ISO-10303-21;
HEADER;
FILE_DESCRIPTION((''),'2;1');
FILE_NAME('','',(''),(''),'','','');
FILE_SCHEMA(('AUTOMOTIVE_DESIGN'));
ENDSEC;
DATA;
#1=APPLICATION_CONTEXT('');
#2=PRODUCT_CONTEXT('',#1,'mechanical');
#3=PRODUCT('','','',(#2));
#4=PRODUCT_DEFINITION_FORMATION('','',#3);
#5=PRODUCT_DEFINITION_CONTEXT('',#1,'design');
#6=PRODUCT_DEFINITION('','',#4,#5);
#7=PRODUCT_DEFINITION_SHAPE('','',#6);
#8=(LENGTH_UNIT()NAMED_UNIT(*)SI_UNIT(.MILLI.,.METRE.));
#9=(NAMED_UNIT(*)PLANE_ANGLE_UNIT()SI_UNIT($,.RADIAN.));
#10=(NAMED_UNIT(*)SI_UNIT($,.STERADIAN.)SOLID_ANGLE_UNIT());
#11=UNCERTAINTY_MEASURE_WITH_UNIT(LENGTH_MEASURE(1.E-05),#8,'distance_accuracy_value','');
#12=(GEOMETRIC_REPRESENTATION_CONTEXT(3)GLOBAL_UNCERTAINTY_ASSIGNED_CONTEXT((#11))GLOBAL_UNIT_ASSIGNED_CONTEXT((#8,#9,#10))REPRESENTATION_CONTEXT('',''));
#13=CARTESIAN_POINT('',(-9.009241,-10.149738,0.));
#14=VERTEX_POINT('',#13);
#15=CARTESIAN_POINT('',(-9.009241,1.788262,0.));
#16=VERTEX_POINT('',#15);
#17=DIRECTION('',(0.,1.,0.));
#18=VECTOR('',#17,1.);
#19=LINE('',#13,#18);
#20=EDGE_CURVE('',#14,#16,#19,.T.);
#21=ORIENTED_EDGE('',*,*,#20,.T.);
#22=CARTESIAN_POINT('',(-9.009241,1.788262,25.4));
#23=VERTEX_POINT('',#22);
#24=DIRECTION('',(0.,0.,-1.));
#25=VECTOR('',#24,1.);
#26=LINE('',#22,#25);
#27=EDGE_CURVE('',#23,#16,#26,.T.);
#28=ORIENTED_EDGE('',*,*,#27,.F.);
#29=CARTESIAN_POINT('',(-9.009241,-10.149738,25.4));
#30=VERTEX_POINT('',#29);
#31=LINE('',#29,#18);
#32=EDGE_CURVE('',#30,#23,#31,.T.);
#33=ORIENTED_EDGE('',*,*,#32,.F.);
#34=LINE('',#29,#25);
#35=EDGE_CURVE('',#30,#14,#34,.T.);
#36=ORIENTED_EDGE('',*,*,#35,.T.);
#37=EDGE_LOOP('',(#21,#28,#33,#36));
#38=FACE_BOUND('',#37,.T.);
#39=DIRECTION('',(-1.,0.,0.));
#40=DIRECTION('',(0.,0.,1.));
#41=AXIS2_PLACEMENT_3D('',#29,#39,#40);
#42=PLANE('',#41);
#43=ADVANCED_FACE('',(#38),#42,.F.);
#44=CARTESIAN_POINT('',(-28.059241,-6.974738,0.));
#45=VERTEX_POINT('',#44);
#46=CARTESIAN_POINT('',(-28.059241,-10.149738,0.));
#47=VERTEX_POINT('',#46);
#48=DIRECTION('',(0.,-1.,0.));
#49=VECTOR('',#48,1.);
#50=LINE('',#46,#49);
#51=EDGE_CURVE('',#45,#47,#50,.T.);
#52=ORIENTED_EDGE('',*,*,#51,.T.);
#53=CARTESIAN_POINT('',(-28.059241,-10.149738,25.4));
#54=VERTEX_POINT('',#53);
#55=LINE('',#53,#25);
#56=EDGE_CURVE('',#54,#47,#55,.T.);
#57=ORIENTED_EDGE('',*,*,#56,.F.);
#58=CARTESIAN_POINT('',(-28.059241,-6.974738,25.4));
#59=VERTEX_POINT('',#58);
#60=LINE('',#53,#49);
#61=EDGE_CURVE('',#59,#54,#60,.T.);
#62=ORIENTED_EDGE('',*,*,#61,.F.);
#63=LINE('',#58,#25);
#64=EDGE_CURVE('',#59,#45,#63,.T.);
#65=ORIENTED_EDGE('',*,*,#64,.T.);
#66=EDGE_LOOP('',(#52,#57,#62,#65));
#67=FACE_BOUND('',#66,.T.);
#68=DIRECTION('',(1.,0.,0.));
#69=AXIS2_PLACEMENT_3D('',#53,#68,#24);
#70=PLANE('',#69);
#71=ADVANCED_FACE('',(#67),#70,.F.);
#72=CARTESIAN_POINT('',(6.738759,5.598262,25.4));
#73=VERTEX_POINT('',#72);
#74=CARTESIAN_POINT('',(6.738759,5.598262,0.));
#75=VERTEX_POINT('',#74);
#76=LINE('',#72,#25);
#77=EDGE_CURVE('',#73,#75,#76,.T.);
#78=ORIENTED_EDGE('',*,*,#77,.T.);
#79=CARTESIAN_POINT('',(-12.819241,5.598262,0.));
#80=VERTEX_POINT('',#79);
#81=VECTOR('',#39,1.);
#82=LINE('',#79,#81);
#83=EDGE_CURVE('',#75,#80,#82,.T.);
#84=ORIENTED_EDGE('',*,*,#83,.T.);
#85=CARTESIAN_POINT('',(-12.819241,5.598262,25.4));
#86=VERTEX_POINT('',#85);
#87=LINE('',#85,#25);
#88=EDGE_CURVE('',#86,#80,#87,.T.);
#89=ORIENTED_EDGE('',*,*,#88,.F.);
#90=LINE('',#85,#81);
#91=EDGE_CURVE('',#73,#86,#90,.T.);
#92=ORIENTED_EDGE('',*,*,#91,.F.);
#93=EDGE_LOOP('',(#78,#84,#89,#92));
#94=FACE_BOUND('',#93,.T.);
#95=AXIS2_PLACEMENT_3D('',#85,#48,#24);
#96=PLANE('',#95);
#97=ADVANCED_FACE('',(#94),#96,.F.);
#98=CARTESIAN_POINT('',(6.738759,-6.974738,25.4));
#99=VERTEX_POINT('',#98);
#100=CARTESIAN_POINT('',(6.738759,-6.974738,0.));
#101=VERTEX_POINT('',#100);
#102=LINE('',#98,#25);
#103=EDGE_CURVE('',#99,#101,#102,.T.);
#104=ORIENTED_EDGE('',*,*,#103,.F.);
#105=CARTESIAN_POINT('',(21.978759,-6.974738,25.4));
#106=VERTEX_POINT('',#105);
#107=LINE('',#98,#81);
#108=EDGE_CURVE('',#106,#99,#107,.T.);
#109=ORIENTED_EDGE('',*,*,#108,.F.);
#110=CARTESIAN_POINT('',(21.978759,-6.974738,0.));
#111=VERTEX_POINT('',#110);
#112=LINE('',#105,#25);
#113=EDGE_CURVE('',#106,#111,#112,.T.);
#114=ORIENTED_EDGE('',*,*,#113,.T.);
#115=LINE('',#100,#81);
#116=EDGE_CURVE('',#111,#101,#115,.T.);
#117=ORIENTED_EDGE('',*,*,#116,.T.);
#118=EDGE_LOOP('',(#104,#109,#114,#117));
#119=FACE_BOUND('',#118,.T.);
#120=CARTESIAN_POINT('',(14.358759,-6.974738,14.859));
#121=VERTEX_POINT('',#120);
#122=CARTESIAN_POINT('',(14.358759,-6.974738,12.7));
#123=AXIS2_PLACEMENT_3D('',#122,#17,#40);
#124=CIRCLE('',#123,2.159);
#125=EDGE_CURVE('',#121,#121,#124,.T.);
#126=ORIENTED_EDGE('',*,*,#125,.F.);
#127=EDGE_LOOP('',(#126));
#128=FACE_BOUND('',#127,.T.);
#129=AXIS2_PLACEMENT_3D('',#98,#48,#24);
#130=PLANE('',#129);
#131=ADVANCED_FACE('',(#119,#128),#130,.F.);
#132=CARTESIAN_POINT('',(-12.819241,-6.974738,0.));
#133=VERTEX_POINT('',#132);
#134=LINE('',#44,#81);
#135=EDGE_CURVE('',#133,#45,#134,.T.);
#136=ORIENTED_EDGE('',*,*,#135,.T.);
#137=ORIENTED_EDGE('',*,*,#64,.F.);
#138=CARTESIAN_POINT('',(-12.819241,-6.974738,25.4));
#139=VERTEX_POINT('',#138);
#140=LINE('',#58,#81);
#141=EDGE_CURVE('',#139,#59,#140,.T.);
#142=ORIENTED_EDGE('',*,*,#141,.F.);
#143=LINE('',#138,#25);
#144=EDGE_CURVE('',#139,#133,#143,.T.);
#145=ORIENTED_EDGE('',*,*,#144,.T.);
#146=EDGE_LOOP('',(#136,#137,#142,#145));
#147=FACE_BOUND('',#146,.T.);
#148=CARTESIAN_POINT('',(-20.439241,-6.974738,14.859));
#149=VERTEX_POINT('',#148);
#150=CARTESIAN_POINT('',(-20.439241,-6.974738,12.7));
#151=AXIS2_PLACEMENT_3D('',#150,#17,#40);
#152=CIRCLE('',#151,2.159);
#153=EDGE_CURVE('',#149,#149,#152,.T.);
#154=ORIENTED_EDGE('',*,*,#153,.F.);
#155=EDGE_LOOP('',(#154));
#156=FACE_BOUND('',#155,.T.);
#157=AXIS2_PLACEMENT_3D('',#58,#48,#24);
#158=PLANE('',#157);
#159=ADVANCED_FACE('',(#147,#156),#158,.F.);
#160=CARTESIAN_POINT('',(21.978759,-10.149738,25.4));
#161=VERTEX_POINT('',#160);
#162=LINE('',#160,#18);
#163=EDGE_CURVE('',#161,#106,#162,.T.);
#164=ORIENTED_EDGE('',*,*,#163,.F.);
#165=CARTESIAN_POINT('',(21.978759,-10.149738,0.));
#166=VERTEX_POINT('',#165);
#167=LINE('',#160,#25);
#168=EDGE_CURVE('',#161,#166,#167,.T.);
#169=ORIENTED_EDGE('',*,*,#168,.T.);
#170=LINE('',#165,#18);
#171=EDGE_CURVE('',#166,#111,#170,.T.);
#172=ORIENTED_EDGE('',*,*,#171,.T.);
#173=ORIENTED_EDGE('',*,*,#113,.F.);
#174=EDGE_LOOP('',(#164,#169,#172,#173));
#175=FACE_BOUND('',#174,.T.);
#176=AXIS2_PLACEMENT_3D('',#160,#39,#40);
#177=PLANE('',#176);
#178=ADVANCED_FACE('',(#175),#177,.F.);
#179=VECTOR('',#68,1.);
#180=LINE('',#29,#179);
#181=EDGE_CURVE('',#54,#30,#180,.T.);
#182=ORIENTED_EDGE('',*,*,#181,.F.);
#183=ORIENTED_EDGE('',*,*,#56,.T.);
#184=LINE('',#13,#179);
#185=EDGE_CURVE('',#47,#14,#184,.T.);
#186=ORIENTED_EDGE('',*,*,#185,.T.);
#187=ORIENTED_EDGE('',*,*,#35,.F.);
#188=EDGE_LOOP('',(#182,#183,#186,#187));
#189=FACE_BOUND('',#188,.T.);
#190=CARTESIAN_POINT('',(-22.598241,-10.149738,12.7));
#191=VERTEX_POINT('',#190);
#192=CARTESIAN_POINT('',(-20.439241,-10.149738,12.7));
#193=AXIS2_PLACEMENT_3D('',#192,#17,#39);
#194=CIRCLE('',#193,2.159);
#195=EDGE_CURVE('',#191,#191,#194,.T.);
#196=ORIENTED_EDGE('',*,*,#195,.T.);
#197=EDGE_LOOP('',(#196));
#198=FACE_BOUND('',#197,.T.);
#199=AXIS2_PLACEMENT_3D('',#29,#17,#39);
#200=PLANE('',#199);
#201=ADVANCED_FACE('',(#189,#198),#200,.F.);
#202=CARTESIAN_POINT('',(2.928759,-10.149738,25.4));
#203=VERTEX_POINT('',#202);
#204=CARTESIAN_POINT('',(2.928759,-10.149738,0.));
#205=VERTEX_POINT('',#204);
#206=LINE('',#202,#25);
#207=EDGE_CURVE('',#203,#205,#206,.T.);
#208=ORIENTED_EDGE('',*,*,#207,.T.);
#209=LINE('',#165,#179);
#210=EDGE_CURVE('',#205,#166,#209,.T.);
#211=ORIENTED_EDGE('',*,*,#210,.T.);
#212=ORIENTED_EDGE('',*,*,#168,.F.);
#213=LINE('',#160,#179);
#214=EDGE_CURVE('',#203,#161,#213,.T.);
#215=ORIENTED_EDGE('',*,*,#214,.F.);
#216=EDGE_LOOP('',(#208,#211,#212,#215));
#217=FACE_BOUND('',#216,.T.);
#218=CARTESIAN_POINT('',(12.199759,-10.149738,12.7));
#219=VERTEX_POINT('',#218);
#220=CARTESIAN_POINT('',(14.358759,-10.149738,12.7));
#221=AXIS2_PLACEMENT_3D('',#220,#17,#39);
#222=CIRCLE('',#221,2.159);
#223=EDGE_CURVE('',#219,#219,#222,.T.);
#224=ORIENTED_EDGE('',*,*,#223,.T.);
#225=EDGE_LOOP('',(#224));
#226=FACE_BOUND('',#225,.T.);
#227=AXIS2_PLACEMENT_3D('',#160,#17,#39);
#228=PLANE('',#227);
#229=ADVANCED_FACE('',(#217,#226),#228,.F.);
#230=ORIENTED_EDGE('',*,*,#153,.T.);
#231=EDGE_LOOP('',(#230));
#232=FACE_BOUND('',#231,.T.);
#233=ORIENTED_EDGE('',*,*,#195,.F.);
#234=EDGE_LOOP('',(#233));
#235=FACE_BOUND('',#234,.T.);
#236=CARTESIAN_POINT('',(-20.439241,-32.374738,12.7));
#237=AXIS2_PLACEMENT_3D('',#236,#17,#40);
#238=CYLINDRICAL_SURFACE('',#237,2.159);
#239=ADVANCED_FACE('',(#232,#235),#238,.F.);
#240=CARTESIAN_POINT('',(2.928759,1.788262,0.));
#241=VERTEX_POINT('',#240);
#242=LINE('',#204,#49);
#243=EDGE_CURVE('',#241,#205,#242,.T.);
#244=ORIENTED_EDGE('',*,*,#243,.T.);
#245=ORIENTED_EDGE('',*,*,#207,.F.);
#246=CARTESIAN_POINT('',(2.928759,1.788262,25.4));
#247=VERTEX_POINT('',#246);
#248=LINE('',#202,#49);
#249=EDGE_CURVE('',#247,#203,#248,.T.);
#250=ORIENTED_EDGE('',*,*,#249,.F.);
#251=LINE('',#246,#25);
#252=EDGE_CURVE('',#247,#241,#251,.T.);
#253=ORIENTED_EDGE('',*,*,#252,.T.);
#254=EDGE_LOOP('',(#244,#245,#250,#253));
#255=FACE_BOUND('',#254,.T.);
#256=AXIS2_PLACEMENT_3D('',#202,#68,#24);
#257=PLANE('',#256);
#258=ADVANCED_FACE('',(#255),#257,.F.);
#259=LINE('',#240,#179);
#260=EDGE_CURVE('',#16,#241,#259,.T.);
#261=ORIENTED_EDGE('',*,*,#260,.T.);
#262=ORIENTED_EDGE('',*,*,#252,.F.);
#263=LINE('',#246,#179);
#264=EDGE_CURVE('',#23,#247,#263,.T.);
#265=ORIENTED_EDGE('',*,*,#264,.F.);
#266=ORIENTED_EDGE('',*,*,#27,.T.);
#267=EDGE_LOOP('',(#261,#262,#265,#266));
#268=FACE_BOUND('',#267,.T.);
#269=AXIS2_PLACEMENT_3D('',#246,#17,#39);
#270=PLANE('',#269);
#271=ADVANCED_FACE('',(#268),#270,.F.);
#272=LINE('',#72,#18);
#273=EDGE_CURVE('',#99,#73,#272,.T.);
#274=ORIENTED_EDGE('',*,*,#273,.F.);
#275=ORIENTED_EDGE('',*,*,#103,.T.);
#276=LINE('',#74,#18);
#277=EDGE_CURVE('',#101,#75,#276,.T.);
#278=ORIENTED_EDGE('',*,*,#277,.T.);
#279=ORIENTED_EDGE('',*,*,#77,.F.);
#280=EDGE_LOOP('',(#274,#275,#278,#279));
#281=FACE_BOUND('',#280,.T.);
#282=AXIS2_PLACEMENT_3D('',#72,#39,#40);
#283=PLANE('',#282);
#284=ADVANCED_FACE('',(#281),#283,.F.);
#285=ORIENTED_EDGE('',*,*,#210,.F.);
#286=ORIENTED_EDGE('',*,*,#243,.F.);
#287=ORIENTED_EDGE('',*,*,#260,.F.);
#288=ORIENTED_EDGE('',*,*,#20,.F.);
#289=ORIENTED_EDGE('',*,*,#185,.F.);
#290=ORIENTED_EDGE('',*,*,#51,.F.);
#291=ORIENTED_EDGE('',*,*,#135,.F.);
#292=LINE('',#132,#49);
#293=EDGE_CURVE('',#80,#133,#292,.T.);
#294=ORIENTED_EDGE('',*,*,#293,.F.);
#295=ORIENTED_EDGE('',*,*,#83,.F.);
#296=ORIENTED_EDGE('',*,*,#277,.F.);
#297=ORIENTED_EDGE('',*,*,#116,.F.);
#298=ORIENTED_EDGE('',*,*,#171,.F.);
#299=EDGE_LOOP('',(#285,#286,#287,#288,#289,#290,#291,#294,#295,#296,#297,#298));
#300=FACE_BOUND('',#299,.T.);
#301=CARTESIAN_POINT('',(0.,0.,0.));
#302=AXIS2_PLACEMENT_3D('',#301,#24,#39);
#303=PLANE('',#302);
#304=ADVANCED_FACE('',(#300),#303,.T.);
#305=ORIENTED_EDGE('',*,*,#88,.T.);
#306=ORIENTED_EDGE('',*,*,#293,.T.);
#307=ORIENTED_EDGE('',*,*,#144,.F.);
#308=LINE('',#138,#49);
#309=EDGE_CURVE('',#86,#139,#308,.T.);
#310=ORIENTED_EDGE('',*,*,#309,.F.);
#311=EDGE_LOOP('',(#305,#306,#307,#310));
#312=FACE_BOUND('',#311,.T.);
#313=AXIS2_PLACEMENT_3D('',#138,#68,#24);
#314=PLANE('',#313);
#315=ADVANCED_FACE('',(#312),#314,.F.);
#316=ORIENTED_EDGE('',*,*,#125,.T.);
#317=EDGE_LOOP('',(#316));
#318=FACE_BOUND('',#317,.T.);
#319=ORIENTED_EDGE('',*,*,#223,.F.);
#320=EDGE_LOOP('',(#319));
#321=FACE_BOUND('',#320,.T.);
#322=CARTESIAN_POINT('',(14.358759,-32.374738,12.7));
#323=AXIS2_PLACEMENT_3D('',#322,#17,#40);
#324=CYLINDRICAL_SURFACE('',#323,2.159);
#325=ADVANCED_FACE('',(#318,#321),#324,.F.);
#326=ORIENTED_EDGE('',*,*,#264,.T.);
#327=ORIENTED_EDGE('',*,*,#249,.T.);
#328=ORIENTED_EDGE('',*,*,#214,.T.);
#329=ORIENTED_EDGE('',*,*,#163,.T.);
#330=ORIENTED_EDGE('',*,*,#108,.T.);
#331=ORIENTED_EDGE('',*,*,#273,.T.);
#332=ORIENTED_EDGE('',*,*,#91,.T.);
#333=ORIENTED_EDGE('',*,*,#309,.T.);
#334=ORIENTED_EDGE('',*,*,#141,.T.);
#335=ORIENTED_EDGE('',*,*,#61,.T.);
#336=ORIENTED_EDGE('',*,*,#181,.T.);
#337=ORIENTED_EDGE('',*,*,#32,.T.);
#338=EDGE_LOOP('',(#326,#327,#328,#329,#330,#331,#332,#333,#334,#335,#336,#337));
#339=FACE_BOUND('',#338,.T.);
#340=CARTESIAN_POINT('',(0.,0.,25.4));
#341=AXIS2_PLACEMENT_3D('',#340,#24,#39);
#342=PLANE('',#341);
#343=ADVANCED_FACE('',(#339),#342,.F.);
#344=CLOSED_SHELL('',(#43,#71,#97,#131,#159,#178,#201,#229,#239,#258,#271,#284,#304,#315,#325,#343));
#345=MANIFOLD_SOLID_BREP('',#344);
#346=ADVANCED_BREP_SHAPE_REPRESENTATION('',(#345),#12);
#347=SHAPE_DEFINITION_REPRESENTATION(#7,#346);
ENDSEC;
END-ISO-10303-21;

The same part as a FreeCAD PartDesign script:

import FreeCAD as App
import Part
import Sketcher
Q = App.Units.Quantity

doc = App.newDocument("Part")
body = doc.addObject("PartDesign::Body", "Body")

sketch1 = body.newObject("Sketcher::SketchObject", "Sketch")
sketch1.AttachmentSupport = (doc.getObject("XY_Plane"), [""])
sketch1.MapMode = "FlatFace"
sketch1.addGeometry([
    Part.LineSegment(App.Vector(-28.059241, -10.149738, 0), App.Vector(-9.009241, -10.149738, 0)),
    Part.LineSegment(App.Vector(-9.009241, -10.149738, 0), App.Vector(-9.009241, 1.788262, 0)),
    Part.LineSegment(App.Vector(-9.009241, 1.788262, 0), App.Vector(2.928759, 1.788262, 0)),
    Part.LineSegment(App.Vector(2.928759, 1.788262, 0), App.Vector(2.928759, -10.149738, 0)),
    Part.LineSegment(App.Vector(2.928759, -10.149738, 0), App.Vector(21.978759, -10.149738, 0)),
    Part.LineSegment(App.Vector(21.978759, -10.149738, 0), App.Vector(21.978759, -6.974738, 0)),
    Part.LineSegment(App.Vector(21.978759, -6.974738, 0), App.Vector(6.738759, -6.974738, 0)),
    Part.LineSegment(App.Vector(6.738759, -6.974738, 0), App.Vector(6.738759, 5.598262, 0)),
    Part.LineSegment(App.Vector(6.738759, 5.598262, 0), App.Vector(-12.819241, 5.598262, 0)),
    Part.LineSegment(App.Vector(-12.819241, 5.598262, 0), App.Vector(-12.819241, -6.974738, 0)),
    Part.LineSegment(App.Vector(-12.819241, -6.974738, 0), App.Vector(-28.059241, -6.974738, 0)),
    Part.LineSegment(App.Vector(-28.059241, -6.974738, 0), App.Vector(-28.059241, -10.149738, 0)),
], False)
sketch1.addConstraint([
    Sketcher.Constraint("Coincident", 0, 2, 1, 1),
    Sketcher.Constraint("Coincident", 1, 2, 2, 1),
    Sketcher.Constraint("Coincident", 2, 2, 3, 1),
    Sketcher.Constraint("Coincident", 3, 2, 4, 1),
    Sketcher.Constraint("Coincident", 4, 2, 5, 1),
    Sketcher.Constraint("Coincident", 5, 2, 6, 1),
    Sketcher.Constraint("Coincident", 6, 2, 7, 1),
    Sketcher.Constraint("Coincident", 7, 2, 8, 1),
    Sketcher.Constraint("Coincident", 8, 2, 9, 1),
    Sketcher.Constraint("Coincident", 9, 2, 10, 1),
    Sketcher.Constraint("Coincident", 10, 2, 11, 1),
    Sketcher.Constraint("Coincident", 11, 2, 0, 1),
    Sketcher.Constraint("Horizontal", 0),
    Sketcher.Constraint("Vertical", 1),
    Sketcher.Constraint("Horizontal", 2),
    Sketcher.Constraint("Vertical", 3),
    Sketcher.Constraint("Horizontal", 4),
    Sketcher.Constraint("Vertical", 5),
    Sketcher.Constraint("Horizontal", 6),
    Sketcher.Constraint("Vertical", 7),
    Sketcher.Constraint("Horizontal", 8),
    Sketcher.Constraint("Vertical", 9),
    Sketcher.Constraint("Horizontal", 10),
    Sketcher.Constraint("Vertical", 11),
    Sketcher.Constraint("Horizontal", 0, 2, 3, 2),
    Sketcher.Constraint("Horizontal", 6, 2, 9, 2),
    Sketcher.Constraint("Equal", 0, 4),
    Sketcher.Constraint("Equal", 6, 10),
    Sketcher.Constraint("Equal", 2, 1),
    Sketcher.Constraint("DistanceX", 6, 2, 6, 1, Q("0.6 in")),
    Sketcher.Constraint("DistanceX", 0, 1, 0, 2, Q("0.75 in")),
    Sketcher.Constraint("DistanceX", 2, 1, 2, 2, Q("0.47 in")),
    Sketcher.Constraint("DistanceY", 5, 1, 5, 2, Q("0.125 in")),
    Sketcher.Constraint("DistanceY", 7, 1, 7, 2, Q("0.495 in")),
    Sketcher.Constraint("DistanceX", 0, 2, -1, 1, 9.009241),
    Sketcher.Constraint("DistanceY", 0, 2, -1, 1, 10.149738),
])
pad1 = body.newObject("PartDesign::Pad", "Pad")
pad1.Profile = sketch1
pad1.Length = Q("1 in")

sketch2 = body.newObject("Sketcher::SketchObject", "Sketch001")
sketch2.AttachmentSupport = (doc.getObject("XZ_Plane"), [""])
sketch2.MapMode = "FlatFace"
sketch2.AttachmentOffset = App.Placement(App.Vector(0, 0, 6.974738), App.Rotation())
sketch2.addGeometry(Part.Circle(App.Vector(14.358759, 12.7, 0), App.Vector(0, 0, 1), 2.159), False)
sketch2.addConstraint([
    Sketcher.Constraint("Diameter", 0, Q("0.17 in")),
    Sketcher.Constraint("DistanceY", -1, 1, 0, 3, Q("0.5 in")),
    Sketcher.Constraint("DistanceX", -1, 1, 0, 3, 14.358759),
])
pocket1 = body.newObject("PartDesign::Pocket", "Pocket")
pocket1.Profile = sketch2
pocket1.Length = Q("1 in")
pocket1.Reversed = True

sketch3 = body.newObject("Sketcher::SketchObject", "Sketch002")
sketch3.AttachmentSupport = (doc.getObject("XZ_Plane"), [""])
sketch3.MapMode = "FlatFace"
sketch3.AttachmentOffset = App.Placement(App.Vector(0, 0, 6.974738), App.Rotation())
sketch3.addGeometry(Part.Circle(App.Vector(-20.439241, 12.7, 0), App.Vector(0, 0, 1), 2.159), False)
sketch3.addConstraint([
    Sketcher.Constraint("Diameter", 0, Q("0.17 in")),
    Sketcher.Constraint("DistanceY", -1, 1, 0, 3, Q("0.5 in")),
    Sketcher.Constraint("DistanceX", 0, 3, -1, 1, 20.439241),
])
pocket2 = body.newObject("PartDesign::Pocket", "Pocket001")
pocket2.Profile = sketch3
pocket2.Length = Q("1 in")
pocket2.Reversed = True

doc.recompute()
